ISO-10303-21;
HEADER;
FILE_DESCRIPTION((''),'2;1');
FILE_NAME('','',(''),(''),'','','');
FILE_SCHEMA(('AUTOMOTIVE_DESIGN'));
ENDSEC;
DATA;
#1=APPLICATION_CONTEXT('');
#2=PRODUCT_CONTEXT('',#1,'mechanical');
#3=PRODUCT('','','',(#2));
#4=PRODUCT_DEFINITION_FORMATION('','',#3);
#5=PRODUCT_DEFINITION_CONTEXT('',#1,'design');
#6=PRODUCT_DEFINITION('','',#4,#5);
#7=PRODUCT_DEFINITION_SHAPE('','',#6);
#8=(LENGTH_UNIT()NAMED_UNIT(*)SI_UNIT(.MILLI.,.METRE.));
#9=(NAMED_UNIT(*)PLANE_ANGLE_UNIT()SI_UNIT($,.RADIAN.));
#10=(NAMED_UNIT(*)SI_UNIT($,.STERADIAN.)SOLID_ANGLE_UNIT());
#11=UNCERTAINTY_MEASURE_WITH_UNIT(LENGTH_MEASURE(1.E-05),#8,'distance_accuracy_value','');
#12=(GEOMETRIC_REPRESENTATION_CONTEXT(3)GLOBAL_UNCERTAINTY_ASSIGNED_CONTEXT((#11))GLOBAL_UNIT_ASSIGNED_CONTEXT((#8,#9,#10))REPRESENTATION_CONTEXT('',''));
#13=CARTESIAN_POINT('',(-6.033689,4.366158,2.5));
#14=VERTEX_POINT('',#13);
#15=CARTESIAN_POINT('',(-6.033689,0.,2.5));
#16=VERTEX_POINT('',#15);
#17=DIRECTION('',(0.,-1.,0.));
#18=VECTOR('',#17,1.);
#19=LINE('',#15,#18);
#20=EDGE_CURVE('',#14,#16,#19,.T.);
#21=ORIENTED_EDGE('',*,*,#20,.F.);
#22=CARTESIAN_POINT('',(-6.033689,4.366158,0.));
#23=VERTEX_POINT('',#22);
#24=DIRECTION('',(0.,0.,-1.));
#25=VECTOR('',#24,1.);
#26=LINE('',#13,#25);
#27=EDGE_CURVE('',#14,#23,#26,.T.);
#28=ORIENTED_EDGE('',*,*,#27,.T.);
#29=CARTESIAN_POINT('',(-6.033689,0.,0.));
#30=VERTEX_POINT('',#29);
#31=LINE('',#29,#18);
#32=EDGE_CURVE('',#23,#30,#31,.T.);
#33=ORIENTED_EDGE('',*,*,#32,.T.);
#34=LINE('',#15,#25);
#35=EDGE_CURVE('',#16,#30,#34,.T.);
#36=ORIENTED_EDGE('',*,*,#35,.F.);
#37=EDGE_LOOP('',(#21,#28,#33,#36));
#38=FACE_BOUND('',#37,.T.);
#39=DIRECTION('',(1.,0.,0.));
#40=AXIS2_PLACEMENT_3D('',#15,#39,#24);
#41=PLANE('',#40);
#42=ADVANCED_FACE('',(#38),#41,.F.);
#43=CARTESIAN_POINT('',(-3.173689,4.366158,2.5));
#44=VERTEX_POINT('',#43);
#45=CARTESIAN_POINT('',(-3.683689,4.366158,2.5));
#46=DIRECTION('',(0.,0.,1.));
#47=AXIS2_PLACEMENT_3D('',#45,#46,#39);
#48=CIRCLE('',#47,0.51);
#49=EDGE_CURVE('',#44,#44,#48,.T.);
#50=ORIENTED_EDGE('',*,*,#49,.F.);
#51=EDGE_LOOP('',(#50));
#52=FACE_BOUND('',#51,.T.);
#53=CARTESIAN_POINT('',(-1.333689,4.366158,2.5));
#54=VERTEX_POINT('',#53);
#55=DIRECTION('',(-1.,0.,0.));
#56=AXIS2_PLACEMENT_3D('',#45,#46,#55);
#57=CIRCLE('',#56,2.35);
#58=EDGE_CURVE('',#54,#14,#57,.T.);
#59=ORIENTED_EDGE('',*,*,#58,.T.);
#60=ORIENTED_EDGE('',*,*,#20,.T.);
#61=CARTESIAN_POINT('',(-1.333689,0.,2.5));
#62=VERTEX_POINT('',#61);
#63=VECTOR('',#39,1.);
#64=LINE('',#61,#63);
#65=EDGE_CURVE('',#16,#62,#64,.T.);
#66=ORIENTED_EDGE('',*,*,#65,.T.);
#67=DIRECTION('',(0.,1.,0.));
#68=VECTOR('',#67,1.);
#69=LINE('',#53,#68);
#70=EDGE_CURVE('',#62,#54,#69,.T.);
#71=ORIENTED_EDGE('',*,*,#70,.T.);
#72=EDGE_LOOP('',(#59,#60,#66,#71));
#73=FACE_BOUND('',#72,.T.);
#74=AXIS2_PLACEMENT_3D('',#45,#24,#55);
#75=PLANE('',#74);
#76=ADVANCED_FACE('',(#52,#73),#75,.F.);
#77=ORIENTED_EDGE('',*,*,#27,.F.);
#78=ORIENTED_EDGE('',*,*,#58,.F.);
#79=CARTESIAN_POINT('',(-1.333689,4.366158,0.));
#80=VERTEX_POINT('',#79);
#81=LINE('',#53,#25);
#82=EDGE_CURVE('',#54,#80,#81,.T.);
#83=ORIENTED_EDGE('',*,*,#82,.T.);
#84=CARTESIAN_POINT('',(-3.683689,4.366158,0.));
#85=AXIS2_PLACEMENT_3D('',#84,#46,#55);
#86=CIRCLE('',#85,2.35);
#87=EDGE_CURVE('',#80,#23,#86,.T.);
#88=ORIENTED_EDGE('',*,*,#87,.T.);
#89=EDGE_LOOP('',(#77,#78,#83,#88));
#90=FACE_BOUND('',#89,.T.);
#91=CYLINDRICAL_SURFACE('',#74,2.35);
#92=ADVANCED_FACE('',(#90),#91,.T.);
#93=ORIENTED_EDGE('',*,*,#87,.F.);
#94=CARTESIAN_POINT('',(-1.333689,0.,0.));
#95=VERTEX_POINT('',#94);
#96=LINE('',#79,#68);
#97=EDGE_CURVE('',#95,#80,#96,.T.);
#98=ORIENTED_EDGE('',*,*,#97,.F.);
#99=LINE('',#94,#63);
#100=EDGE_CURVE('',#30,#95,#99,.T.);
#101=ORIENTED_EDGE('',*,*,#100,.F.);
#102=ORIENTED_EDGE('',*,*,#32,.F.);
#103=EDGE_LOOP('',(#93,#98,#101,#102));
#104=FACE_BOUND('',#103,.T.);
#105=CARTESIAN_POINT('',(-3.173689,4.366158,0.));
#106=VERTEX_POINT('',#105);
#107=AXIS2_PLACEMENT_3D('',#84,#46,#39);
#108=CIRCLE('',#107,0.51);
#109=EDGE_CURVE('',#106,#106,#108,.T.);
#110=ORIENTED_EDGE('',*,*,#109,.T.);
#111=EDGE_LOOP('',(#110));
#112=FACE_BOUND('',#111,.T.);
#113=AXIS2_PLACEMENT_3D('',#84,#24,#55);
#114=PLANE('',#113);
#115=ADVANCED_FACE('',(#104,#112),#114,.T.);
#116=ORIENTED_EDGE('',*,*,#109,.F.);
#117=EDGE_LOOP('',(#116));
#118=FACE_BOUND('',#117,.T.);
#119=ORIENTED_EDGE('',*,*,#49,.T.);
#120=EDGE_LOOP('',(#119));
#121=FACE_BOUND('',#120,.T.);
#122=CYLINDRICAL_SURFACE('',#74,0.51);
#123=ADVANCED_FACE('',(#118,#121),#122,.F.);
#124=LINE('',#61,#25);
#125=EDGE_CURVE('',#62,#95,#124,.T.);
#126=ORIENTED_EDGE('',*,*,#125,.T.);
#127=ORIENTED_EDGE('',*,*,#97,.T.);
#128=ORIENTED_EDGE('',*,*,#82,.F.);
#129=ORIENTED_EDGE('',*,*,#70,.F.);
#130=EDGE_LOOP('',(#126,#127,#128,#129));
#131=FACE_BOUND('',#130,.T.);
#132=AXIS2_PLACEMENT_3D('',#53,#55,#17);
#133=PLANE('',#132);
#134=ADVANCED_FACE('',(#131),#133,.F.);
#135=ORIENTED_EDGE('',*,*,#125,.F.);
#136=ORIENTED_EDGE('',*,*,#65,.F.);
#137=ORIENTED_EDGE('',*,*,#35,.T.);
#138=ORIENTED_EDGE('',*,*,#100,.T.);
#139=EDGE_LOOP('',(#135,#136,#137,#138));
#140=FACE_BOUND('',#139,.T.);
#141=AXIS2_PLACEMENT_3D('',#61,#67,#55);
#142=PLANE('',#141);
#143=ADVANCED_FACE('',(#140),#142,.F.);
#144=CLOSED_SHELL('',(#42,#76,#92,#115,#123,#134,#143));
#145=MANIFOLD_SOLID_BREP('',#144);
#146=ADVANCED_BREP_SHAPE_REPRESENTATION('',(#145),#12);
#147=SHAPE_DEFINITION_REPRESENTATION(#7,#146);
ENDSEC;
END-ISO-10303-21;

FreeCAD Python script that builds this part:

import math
import FreeCAD as App
import Part
import Sketcher

V = App.Vector
Q = App.Units.Quantity

doc = App.newDocument("Part")
body = doc.addObject("PartDesign::Body", "Body")

# Sketch on XY plane
sketch1 = body.newObject("Sketcher::SketchObject", "Sketch")
sketch1.AttachmentSupport = (doc.getObject("XY_Plane"), [""])
sketch1.MapMode = "FlatFace"
sketch1.addGeometry(Part.LineSegment(V(-6.033689, 4.366158, 0), V(-6.033689, 0, 0)), False)
sketch1.addGeometry(Part.LineSegment(V(-6.033689, 0, 0), V(-1.333689, 0, 0)), False)
sketch1.addGeometry(Part.LineSegment(V(-1.333689, 0, 0), V(-1.333689, 4.366158, 0)), False)
sketch1.addGeometry(Part.ArcOfCircle(Part.Circle(V(-3.683689, 4.366158, 0), V(0, 0, 1), 2.35), math.radians(0), math.radians(180)), False)
sketch1.addGeometry(Part.Circle(V(-3.683689, 4.366158, 0), V(0, 0, 1), 0.51), False)
sketch1.addConstraint(Sketcher.Constraint("Coincident", 0, 2, 1, 1))
sketch1.addConstraint(Sketcher.Constraint("Coincident", 1, 2, 2, 1))
sketch1.addConstraint(Sketcher.Constraint("Tangent", 2, 2, 3, 1))
sketch1.addConstraint(Sketcher.Constraint("Tangent", 3, 2, 0, 1))
sketch1.addConstraint(Sketcher.Constraint("Vertical", 0))
sketch1.addConstraint(Sketcher.Constraint("Horizontal", 1))
sketch1.addConstraint(Sketcher.Constraint("Vertical", 2))
sketch1.addConstraint(Sketcher.Constraint("Coincident", 4, 3, 3, 3))
sketch1.addConstraint(Sketcher.Constraint("PointOnObject", 0, 2, -1))
sketch1.addConstraint(Sketcher.Constraint("Diameter", 4, Q("1.02 mm")))
sketch1.addConstraint(Sketcher.Constraint("Radius", 3, Q("2.35 mm")))
sketch1.addConstraint(Sketcher.Constraint("DistanceY", 0, 2, 0, 1, Q("4.366158 mm")))
sketch1.addConstraint(Sketcher.Constraint("DistanceX", 3, 3, -1, 1, Q("3.683689 mm")))
pad1 = body.newObject("PartDesign::Pad", "Pad")
pad1.Profile = sketch1
pad1.Length = 2.5

doc.recompute()
